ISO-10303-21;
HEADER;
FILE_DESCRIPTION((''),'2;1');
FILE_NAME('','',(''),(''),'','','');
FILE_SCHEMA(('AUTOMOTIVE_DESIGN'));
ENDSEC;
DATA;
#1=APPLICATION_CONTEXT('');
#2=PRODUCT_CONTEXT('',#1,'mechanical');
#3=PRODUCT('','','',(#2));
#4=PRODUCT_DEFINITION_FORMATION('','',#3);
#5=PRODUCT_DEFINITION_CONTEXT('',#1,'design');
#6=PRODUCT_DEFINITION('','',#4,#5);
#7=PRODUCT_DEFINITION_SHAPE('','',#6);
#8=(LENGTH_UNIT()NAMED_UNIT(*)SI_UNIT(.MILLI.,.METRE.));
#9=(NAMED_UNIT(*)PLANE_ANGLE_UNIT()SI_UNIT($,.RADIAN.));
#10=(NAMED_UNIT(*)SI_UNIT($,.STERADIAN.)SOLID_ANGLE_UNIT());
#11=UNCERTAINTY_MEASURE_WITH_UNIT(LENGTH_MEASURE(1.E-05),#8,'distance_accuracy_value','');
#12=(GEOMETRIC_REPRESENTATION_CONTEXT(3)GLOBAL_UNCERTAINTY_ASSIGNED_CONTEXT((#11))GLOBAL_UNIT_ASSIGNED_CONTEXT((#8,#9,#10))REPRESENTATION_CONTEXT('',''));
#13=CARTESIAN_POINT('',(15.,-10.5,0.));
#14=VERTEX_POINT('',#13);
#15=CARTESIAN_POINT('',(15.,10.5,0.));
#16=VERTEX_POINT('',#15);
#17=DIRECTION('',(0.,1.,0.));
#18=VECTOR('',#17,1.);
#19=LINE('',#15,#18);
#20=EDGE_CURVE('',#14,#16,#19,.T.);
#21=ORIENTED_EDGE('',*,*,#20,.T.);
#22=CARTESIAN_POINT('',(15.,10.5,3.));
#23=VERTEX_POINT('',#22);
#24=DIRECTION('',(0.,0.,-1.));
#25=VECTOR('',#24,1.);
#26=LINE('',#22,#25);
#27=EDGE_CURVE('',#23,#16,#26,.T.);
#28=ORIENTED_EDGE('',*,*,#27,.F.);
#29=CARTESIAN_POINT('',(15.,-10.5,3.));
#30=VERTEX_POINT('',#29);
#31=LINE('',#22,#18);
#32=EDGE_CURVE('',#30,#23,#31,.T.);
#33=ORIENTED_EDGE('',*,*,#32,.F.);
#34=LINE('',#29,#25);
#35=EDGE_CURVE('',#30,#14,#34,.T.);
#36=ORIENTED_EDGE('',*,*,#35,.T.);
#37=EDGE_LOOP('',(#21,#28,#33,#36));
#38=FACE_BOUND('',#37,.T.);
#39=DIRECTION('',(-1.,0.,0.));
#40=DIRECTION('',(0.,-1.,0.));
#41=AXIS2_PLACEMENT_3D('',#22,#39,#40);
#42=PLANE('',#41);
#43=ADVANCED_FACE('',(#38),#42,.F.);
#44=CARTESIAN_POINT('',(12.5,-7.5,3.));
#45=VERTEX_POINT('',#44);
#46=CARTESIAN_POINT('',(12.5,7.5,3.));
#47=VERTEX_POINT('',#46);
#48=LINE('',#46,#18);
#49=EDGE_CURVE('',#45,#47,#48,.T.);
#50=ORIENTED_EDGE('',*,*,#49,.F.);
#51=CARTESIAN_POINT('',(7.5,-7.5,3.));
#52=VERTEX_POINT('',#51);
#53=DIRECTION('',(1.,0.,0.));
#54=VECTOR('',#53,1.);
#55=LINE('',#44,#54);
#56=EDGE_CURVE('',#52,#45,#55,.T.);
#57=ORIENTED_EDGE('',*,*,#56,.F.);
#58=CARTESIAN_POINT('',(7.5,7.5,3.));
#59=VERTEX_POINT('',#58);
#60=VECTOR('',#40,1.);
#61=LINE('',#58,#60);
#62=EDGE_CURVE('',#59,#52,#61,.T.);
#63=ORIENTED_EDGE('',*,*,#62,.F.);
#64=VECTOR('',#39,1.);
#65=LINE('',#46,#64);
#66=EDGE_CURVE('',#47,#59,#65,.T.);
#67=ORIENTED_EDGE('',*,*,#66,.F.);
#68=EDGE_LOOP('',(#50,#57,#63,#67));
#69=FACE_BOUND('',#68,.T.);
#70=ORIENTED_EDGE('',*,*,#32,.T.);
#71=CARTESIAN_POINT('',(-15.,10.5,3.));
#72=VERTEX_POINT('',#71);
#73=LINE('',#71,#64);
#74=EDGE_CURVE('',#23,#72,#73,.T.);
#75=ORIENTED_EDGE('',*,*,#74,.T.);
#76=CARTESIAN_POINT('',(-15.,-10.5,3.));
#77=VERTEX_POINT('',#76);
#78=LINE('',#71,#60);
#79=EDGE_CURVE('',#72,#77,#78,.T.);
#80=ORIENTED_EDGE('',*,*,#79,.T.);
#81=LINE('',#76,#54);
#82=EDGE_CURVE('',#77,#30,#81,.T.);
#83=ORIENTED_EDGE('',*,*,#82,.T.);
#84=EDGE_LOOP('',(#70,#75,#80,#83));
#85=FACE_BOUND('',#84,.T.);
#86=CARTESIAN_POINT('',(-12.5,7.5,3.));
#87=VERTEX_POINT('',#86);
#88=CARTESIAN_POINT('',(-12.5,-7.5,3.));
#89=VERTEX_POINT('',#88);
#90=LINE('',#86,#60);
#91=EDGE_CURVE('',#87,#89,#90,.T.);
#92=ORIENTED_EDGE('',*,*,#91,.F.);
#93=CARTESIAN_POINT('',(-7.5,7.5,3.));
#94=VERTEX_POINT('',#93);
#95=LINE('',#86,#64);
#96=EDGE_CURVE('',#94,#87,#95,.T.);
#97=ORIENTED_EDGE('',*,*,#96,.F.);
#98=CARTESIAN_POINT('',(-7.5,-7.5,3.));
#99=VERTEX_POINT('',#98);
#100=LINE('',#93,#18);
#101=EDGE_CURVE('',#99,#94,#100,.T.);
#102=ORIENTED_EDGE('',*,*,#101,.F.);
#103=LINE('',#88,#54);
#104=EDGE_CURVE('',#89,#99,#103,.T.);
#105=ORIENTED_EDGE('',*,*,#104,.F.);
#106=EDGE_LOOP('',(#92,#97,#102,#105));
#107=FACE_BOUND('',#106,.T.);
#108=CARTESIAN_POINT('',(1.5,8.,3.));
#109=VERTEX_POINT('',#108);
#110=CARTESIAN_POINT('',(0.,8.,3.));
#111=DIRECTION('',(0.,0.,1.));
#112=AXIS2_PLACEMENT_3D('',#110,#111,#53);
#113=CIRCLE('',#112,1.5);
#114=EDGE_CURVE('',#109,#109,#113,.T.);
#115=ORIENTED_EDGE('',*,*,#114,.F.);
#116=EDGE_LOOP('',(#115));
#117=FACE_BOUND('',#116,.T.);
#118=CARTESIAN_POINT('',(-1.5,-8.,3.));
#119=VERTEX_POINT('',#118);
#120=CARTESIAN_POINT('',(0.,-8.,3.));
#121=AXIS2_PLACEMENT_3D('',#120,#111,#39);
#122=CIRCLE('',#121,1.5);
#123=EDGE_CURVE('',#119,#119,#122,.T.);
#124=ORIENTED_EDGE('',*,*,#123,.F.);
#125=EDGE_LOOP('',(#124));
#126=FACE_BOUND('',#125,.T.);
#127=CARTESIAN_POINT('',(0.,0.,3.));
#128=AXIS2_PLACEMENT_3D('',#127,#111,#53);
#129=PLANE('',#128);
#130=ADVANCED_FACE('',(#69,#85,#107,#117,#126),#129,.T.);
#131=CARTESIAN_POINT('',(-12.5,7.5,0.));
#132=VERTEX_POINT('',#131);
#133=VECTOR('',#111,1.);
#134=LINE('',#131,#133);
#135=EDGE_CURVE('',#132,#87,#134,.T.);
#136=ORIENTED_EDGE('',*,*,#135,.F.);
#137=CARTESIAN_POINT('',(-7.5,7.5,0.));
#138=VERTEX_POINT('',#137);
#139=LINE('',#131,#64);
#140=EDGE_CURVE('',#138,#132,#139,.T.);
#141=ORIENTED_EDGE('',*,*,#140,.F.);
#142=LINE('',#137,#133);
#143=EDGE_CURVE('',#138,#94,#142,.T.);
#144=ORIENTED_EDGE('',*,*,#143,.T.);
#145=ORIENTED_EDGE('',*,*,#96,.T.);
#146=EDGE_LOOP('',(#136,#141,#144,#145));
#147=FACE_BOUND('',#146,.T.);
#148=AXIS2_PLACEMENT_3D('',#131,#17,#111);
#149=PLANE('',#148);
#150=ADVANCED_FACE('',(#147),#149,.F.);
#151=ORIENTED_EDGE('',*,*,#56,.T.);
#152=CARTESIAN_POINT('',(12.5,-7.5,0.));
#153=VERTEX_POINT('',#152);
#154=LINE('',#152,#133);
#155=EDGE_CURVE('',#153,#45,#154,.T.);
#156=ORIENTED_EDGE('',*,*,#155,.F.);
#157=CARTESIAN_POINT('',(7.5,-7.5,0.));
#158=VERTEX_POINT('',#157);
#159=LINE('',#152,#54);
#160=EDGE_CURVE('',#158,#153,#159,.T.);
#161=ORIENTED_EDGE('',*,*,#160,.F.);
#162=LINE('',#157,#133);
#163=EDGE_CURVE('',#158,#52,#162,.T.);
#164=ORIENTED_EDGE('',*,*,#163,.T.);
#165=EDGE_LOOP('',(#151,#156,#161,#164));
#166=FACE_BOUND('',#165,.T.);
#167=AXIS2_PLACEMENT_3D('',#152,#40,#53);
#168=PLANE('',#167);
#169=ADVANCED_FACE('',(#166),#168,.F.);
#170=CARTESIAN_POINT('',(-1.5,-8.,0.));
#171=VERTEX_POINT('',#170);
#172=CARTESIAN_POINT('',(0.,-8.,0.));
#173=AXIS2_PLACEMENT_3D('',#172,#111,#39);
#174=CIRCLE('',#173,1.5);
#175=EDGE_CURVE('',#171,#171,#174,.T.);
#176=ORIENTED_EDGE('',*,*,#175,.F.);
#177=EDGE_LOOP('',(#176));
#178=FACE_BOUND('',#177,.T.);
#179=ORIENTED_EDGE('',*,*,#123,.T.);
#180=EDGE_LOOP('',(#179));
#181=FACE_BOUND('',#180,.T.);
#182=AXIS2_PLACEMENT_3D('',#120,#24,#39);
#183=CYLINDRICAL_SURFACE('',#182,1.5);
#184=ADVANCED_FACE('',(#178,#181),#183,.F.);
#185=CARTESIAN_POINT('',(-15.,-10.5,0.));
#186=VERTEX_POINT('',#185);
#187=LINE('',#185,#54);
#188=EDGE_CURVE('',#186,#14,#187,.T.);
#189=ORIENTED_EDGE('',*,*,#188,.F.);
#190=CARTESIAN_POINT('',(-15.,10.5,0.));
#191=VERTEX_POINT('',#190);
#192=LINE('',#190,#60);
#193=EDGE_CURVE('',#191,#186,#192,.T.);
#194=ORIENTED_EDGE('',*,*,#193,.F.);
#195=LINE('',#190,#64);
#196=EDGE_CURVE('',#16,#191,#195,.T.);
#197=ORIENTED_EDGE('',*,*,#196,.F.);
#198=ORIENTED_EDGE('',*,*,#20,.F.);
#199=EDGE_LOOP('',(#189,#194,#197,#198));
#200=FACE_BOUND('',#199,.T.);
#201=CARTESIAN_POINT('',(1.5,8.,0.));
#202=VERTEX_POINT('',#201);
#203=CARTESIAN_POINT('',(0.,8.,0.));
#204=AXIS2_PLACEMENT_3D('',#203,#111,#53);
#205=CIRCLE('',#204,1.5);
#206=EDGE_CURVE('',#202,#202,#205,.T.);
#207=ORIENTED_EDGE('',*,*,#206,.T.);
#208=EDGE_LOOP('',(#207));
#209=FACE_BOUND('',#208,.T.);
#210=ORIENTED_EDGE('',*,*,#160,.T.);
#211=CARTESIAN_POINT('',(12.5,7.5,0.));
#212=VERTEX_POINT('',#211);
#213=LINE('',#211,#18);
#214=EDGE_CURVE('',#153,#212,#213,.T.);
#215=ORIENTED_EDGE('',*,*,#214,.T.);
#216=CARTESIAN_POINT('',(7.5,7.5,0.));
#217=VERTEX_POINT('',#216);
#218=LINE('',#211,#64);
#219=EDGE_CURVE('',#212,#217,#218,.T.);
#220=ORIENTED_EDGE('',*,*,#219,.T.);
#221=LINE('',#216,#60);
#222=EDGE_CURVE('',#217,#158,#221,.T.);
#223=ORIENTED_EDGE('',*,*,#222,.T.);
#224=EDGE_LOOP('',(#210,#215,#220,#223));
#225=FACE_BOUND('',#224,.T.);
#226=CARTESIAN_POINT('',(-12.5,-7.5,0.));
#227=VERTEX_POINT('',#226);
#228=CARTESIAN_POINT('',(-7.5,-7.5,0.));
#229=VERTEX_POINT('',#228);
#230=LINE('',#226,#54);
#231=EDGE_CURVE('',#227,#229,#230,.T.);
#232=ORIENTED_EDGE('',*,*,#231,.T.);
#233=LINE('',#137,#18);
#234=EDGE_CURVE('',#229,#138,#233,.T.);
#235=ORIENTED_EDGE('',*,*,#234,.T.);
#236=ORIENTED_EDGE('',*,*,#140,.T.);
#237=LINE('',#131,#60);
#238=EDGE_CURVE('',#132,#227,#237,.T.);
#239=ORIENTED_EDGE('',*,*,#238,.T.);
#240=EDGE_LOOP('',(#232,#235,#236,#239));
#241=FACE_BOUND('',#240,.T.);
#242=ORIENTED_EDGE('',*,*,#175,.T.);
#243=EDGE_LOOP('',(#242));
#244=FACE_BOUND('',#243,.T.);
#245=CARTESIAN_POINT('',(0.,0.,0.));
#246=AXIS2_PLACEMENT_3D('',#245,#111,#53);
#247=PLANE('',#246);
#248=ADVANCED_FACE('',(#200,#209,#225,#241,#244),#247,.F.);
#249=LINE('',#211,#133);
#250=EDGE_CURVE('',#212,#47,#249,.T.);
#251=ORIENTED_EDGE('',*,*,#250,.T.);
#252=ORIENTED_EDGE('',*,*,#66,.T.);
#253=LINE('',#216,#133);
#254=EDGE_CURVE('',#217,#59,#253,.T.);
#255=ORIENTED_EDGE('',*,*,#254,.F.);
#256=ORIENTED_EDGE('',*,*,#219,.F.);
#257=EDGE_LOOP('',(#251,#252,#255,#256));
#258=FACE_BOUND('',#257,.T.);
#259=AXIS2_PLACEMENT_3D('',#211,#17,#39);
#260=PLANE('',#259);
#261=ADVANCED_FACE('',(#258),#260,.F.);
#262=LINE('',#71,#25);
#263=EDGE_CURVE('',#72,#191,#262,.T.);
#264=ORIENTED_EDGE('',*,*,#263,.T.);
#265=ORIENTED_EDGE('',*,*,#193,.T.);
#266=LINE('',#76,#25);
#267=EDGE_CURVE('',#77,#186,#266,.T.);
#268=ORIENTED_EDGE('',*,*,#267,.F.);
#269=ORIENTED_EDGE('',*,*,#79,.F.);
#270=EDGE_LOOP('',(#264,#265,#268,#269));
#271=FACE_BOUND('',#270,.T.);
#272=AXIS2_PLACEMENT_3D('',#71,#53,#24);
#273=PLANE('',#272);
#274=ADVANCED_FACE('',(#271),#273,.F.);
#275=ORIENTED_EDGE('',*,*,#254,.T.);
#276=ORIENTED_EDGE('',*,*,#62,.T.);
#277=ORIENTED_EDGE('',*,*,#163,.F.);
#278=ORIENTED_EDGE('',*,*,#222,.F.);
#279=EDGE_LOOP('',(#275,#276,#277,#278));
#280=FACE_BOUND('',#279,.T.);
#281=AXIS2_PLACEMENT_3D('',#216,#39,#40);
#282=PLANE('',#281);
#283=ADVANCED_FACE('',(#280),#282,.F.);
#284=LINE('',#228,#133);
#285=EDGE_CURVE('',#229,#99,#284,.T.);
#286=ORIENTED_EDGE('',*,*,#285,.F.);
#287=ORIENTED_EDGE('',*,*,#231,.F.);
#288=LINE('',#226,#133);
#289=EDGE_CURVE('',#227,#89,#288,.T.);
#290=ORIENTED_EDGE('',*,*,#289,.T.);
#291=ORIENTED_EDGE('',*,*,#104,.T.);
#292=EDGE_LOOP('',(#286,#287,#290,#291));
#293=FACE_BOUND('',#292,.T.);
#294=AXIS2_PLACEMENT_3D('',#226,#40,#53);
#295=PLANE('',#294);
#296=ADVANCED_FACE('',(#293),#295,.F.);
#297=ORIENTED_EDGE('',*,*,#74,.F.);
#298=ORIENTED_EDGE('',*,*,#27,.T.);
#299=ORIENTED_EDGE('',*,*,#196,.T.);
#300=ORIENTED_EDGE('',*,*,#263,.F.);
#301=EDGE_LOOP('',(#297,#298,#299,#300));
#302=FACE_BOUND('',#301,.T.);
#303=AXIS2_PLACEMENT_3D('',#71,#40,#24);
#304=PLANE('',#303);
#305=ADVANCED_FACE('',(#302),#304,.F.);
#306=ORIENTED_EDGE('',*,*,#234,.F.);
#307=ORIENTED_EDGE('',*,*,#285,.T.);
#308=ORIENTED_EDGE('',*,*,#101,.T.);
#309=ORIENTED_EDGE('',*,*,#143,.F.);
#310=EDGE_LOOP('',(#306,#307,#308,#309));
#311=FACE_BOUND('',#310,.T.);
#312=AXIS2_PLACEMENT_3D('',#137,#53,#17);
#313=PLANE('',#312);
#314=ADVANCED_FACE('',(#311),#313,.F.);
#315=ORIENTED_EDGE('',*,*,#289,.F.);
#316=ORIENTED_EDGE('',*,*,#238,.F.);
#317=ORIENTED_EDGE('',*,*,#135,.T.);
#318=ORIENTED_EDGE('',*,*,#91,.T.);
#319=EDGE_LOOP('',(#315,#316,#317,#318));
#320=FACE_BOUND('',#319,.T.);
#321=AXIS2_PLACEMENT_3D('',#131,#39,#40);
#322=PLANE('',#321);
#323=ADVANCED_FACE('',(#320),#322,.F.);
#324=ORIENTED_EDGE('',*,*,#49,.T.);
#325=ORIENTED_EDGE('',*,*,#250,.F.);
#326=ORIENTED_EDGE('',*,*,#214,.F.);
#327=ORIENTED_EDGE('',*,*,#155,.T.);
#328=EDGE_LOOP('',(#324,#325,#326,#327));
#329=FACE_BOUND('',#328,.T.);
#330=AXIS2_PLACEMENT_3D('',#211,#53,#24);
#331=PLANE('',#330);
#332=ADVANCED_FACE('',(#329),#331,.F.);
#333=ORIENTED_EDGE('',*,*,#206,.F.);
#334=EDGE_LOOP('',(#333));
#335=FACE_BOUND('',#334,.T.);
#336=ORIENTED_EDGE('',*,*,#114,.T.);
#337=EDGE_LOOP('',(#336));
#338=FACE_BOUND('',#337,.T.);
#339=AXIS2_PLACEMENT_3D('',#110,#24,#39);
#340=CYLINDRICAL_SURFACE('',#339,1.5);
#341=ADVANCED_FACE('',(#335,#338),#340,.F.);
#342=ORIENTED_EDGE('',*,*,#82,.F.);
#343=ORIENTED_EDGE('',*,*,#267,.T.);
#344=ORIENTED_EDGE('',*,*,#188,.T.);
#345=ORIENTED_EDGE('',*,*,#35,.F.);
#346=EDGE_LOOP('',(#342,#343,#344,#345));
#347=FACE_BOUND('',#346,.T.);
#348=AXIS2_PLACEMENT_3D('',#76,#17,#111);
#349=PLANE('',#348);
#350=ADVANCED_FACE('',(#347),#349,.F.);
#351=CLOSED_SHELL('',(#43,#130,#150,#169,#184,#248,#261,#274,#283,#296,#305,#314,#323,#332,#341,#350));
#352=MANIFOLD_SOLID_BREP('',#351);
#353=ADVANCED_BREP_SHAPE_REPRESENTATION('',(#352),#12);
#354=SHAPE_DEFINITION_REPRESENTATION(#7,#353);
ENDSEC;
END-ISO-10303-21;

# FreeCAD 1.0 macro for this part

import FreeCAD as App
import Part
import Sketcher
from FreeCAD import Vector

doc = App.newDocument("Part")
body = doc.addObject("PartDesign::Body", "Body")

# Sketch on XY plane
sketch1 = body.newObject("Sketcher::SketchObject", "Sketch")
sketch1.AttachmentSupport = (doc.getObject("XY_Plane"), [""])
sketch1.MapMode = "FlatFace"
sketch1.addGeometry([
    Part.LineSegment(Vector(-15, 10.5, 0), Vector(-15, -10.5, 0)),  # 0
    Part.LineSegment(Vector(-15, -10.5, 0), Vector(15, -10.5, 0)),  # 1
    Part.LineSegment(Vector(15, -10.5, 0), Vector(15, 10.5, 0)),  # 2
    Part.LineSegment(Vector(15, 10.5, 0), Vector(-15, 10.5, 0)),  # 3
    Part.Circle(Vector(0, -8, 0), Vector(0, 0, 1), 1.5),  # 4
    Part.Circle(Vector(0, 8, 0), Vector(0, 0, 1), 1.5),  # 5
], False)
sketch1.addConstraint([
    Sketcher.Constraint("Coincident", 0, 2, 1, 1),
    Sketcher.Constraint("Coincident", 1, 2, 2, 1),
    Sketcher.Constraint("Coincident", 2, 2, 3, 1),
    Sketcher.Constraint("Coincident", 3, 2, 0, 1),
    Sketcher.Constraint("Vertical", 0),
    Sketcher.Constraint("Horizontal", 1),
    Sketcher.Constraint("Vertical", 2),
    Sketcher.Constraint("Horizontal", 3),
    Sketcher.Constraint("Equal", 4, 5),
    Sketcher.Constraint("Symmetric", 4, 3, 5, 3, -1, 1),
    Sketcher.Constraint("Symmetric", 0, 2, 2, 2, -1, 1),
    Sketcher.Constraint("PointOnObject", 4, 3, -2),
    Sketcher.Constraint("Diameter", 4, 3.0),
    Sketcher.Constraint("DistanceX", 1, 1, 1, 2, 30.0),
    Sketcher.Constraint("DistanceY", 0, 2, 0, 1, 21.0),
    Sketcher.Constraint("DistanceY", 4, 3, -1, 1, 8.0),
])
pad1 = body.newObject("PartDesign::Pad", "Pad")
pad1.Profile = sketch1
pad1.Length = 3

# Sketch on XY plane
sketch2 = body.newObject("Sketcher::SketchObject", "Sketch001")
sketch2.AttachmentSupport = (doc.getObject("XY_Plane"), [""])
sketch2.MapMode = "FlatFace"
sketch2.AttachmentOffset = App.Placement(Vector(0, 0, 3), App.Rotation())
sketch2.addGeometry([
    Part.LineSegment(Vector(-12, 8, 0), Vector(-12, -8, 0)),  # 0
    Part.LineSegment(Vector(-12, -8, 0), Vector(-8, -8, 0)),  # 1
    Part.LineSegment(Vector(-8, -8, 0), Vector(-8, 8, 0)),  # 2
    Part.LineSegment(Vector(-8, 8, 0), Vector(-12, 8, 0)),  # 3
    Part.LineSegment(Vector(8, 8, 0), Vector(8, -8, 0)),  # 4
    Part.LineSegment(Vector(8, -8, 0), Vector(12, -8, 0)),  # 5
    Part.LineSegment(Vector(12, -8, 0), Vector(12, 8, 0)),  # 6
    Part.LineSegment(Vector(12, 8, 0), Vector(8, 8, 0)),  # 7
], False)
sketch2.addConstraint([
    Sketcher.Constraint("Coincident", 0, 2, 1, 1),
    Sketcher.Constraint("Coincident", 1, 2, 2, 1),
    Sketcher.Constraint("Coincident", 2, 2, 3, 1),
    Sketcher.Constraint("Coincident", 3, 2, 0, 1),
    Sketcher.Constraint("Coincident", 4, 2, 5, 1),
    Sketcher.Constraint("Coincident", 5, 2, 6, 1),
    Sketcher.Constraint("Coincident", 6, 2, 7, 1),
    Sketcher.Constraint("Coincident", 7, 2, 4, 1),
    Sketcher.Constraint("Vertical", 0),
    Sketcher.Constraint("Horizontal", 1),
    Sketcher.Constraint("Vertical", 2),
    Sketcher.Constraint("Horizontal", 3),
    Sketcher.Constraint("Vertical", 4),
    Sketcher.Constraint("Horizontal", 5),
    Sketcher.Constraint("Vertical", 6),
    Sketcher.Constraint("Horizontal", 7),
    Sketcher.Constraint("Symmetric", 2, 2, 4, 2, -1, 1),
    Sketcher.Constraint("Symmetric", 0, 2, 6, 2, -1, 1),
    Sketcher.Constraint("Horizontal", 1, 2, 4, 2),
    Sketcher.Constraint("DistanceX", 1, 1, 1, 2, 5.0),
    Sketcher.Constraint("DistanceY", 0, 2, 0, 1, 15.0),
    Sketcher.Constraint("DistanceX", 1, 2, 4, 2, 15.0),
])
pocket1 = body.newObject("PartDesign::Pocket", "Pocket")
pocket1.Profile = sketch2
pocket1.Type = "ThroughAll"

doc.recompute()
